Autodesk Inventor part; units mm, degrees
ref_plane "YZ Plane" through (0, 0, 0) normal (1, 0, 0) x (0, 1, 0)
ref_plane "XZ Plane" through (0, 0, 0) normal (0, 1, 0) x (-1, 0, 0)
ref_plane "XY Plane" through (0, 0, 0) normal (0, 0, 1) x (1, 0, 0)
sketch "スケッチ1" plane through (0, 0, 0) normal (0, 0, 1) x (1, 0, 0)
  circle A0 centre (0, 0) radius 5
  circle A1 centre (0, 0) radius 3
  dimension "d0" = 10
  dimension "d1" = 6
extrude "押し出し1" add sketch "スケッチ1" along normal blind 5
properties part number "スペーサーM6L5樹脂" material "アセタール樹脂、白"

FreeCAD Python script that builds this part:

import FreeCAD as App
import Part
import Sketcher
from FreeCAD import Vector
Q = App.Units.Quantity

doc = App.newDocument("Part")
body = doc.addObject("PartDesign::Body", "Body")

sketch1 = body.newObject("Sketcher::SketchObject", "Sketch")
sketch1.AttachmentSupport = (doc.getObject("XY_Plane"), [""])
sketch1.MapMode = "FlatFace"
sketch1.addGeometry([
    Part.Circle(Vector(0, 0, 0), Vector(0, 0, 1), 5),
    Part.Circle(Vector(0, 0, 0), Vector(0, 0, 1), 3),
], False)
sketch1.addConstraint([
    Sketcher.Constraint("Coincident", 0, 3, -1, 1),
    Sketcher.Constraint("Coincident", 1, 3, -1, 1),
    Sketcher.Constraint("Diameter", 0, Q("10 mm")),
    Sketcher.Constraint("Diameter", 1, Q("6 mm")),
])
pad1 = body.newObject("PartDesign::Pad", "Pad")
pad1.Profile = sketch1
pad1.Length = 5

doc.recompute()
